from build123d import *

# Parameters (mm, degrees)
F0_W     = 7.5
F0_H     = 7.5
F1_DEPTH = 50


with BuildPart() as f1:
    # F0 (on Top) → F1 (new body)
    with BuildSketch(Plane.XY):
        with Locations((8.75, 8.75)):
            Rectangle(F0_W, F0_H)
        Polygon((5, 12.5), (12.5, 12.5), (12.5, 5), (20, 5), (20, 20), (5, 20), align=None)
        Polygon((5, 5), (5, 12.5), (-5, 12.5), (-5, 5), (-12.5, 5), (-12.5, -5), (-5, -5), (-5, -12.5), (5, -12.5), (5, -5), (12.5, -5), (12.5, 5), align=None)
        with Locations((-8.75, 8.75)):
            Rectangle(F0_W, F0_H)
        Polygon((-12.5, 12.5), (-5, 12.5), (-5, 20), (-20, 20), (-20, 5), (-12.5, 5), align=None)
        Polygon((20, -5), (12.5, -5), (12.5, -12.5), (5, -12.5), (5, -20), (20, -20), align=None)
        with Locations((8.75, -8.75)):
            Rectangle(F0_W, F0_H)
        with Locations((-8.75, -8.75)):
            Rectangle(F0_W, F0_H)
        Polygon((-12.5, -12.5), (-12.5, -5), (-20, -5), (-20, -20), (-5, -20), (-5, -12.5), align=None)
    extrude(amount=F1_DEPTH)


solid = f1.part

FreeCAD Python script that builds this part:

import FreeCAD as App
import Part
import Sketcher

doc = App.newDocument("Part")
body = doc.addObject("PartDesign::Body", "Body")

# Sketch on XY plane
sketch1 = body.newObject("Sketcher::SketchObject", "Sketch")
sketch1.AttachmentSupport = (doc.getObject("XY_Plane"), [""])
sketch1.MapMode = "FlatFace"
sketch1.addGeometry(Part.LineSegment(App.Vector(12, 5, 0), App.Vector(20, 5, 0)), False)
sketch1.addGeometry(Part.LineSegment(App.Vector(20, 5, 0), App.Vector(20, 20, 0)), False)
sketch1.addGeometry(Part.LineSegment(App.Vector(20, 20, 0), App.Vector(5, 20, 0)), False)
sketch1.addGeometry(Part.LineSegment(App.Vector(5, 20, 0), App.Vector(5, 12, 0)), False)
sketch1.addGeometry(Part.LineSegment(App.Vector(5, 12, 0), App.Vector(-5, 12, 0)), False)
sketch1.addGeometry(Part.LineSegment(App.Vector(-5, 12, 0), App.Vector(-5, 20, 0)), False)
sketch1.addGeometry(Part.LineSegment(App.Vector(-5, 20, 0), App.Vector(-20, 20, 0)), False)
sketch1.addGeometry(Part.LineSegment(App.Vector(-20, 20, 0), App.Vector(-20, 5, 0)), False)
sketch1.addGeometry(Part.LineSegment(App.Vector(-20, 5, 0), App.Vector(-12, 5, 0)), False)
sketch1.addGeometry(Part.LineSegment(App.Vector(-12, 5, 0), App.Vector(-12, -5, 0)), False)
sketch1.addGeometry(Part.LineSegment(App.Vector(-12, -5, 0), App.Vector(-20, -5, 0)), False)
sketch1.addGeometry(Part.LineSegment(App.Vector(-20, -5, 0), App.Vector(-20, -20, 0)), False)
sketch1.addGeometry(Part.LineSegment(App.Vector(-20, -20, 0), App.Vector(-5, -20, 0)), False)
sketch1.addGeometry(Part.LineSegment(App.Vector(-5, -20, 0), App.Vector(-5, -12, 0)), False)
sketch1.addGeometry(Part.LineSegment(App.Vector(-5, -12, 0), App.Vector(5, -12, 0)), False)
sketch1.addGeometry(Part.LineSegment(App.Vector(5, -12, 0), App.Vector(5, -20, 0)), False)
sketch1.addGeometry(Part.LineSegment(App.Vector(5, -20, 0), App.Vector(20, -20, 0)), False)
sketch1.addGeometry(Part.LineSegment(App.Vector(20, -20, 0), App.Vector(20, -5, 0)), False)
sketch1.addGeometry(Part.LineSegment(App.Vector(20, -5, 0), App.Vector(12, -5, 0)), False)
sketch1.addGeometry(Part.LineSegment(App.Vector(12, -5, 0), App.Vector(12, 5, 0)), False)
sketch1.addConstraint(Sketcher.Constraint("Coincident", 0, 2, 1, 1))
sketch1.addConstraint(Sketcher.Constraint("Coincident", 1, 2, 2, 1))
sketch1.addConstraint(Sketcher.Constraint("Coincident", 2, 2, 3, 1))
sketch1.addConstraint(Sketcher.Constraint("Coincident", 3, 2, 4, 1))
sketch1.addConstraint(Sketcher.Constraint("Coincident", 4, 2, 5, 1))
sketch1.addConstraint(Sketcher.Constraint("Coincident", 5, 2, 6, 1))
sketch1.addConstraint(Sketcher.Constraint("Coincident", 6, 2, 7, 1))
sketch1.addConstraint(Sketcher.Constraint("Coincident", 7, 2, 8, 1))
sketch1.addConstraint(Sketcher.Constraint("Coincident", 8, 2, 9, 1))
sketch1.addConstraint(Sketcher.Constraint("Coincident", 9, 2, 10, 1))
sketch1.addConstraint(Sketcher.Constraint("Coincident", 10, 2, 11, 1))
sketch1.addConstraint(Sketcher.Constraint("Coincident", 11, 2, 12, 1))
sketch1.addConstraint(Sketcher.Constraint("Coincident", 12, 2, 13, 1))
sketch1.addConstraint(Sketcher.Constraint("Coincident", 13, 2, 14, 1))
sketch1.addConstraint(Sketcher.Constraint("Coincident", 14, 2, 15, 1))
sketch1.addConstraint(Sketcher.Constraint("Coincident", 15, 2, 16, 1))
sketch1.addConstraint(Sketcher.Constraint("Coincident", 16, 2, 17, 1))
sketch1.addConstraint(Sketcher.Constraint("Coincident", 17, 2, 18, 1))
sketch1.addConstraint(Sketcher.Constraint("Coincident", 18, 2, 19, 1))
sketch1.addConstraint(Sketcher.Constraint("Coincident", 19, 2, 0, 1))
sketch1.addConstraint(Sketcher.Constraint("Horizontal", 0))
sketch1.addConstraint(Sketcher.Constraint("Vertical", 1))
sketch1.addConstraint(Sketcher.Constraint("Horizontal", 2))
sketch1.addConstraint(Sketcher.Constraint("Vertical", 3))
sketch1.addConstraint(Sketcher.Constraint("Horizontal", 4))
sketch1.addConstraint(Sketcher.Constraint("Vertical", 5))
sketch1.addConstraint(Sketcher.Constraint("Horizontal", 6))
sketch1.addConstraint(Sketcher.Constraint("Vertical", 7))
sketch1.addConstraint(Sketcher.Constraint("Horizontal", 8))
sketch1.addConstraint(Sketcher.Constraint("Vertical", 9))
sketch1.addConstraint(Sketcher.Constraint("Horizontal", 10))
sketch1.addConstraint(Sketcher.Constraint("Vertical", 11))
sketch1.addConstraint(Sketcher.Constraint("Horizontal", 12))
sketch1.addConstraint(Sketcher.Constraint("Vertical", 13))
sketch1.addConstraint(Sketcher.Constraint("Horizontal", 14))
sketch1.addConstraint(Sketcher.Constraint("Vertical", 15))
sketch1.addConstraint(Sketcher.Constraint("Horizontal", 16))
sketch1.addConstraint(Sketcher.Constraint("Vertical", 17))
sketch1.addConstraint(Sketcher.Constraint("Horizontal", 18))
sketch1.addConstraint(Sketcher.Constraint("Vertical", 19))
sketch1.addConstraint(Sketcher.Constraint("Symmetric", 0, 2, 10, 2, -1, 1))
sketch1.addConstraint(Sketcher.Constraint("Symmetric", 2, 2, 12, 2, -1, 1))
sketch1.addConstraint(Sketcher.Constraint("Symmetric", 4, 2, 14, 2, -1, 1))
sketch1.addConstraint(Sketcher.Constraint("Symmetric", 6, 2, 16, 2, -1, 1))
sketch1.addConstraint(Sketcher.Constraint("Symmetric", 8, 2, 18, 2, -1, 1))
sketch1.addConstraint(Sketcher.Constraint("Symmetric", 2, 2, 5, 2, -2))
sketch1.addConstraint(Sketcher.Constraint("Symmetric", 0, 2, 7, 2, -2))
sketch1.addConstraint(Sketcher.Constraint("Equal", 16, 1))
sketch1.addConstraint(Sketcher.Constraint("Equal", 18, 3))
sketch1.addConstraint(Sketcher.Constraint("Equal", 14, 9))
sketch1.addConstraint(Sketcher.Constraint("DistanceX", 2, 2, 2, 1, 15.0))
sketch1.addConstraint(Sketcher.Constraint("DistanceX", 4, 2, 4, 1, 10.0))
sketch1.addConstraint(Sketcher.Constraint("DistanceX", 0, 1, 0, 2, 7.5))
pad1 = body.newObject("PartDesign::Pad", "Pad")
pad1.Profile = sketch1
pad1.Length = 50

doc.recompute()
